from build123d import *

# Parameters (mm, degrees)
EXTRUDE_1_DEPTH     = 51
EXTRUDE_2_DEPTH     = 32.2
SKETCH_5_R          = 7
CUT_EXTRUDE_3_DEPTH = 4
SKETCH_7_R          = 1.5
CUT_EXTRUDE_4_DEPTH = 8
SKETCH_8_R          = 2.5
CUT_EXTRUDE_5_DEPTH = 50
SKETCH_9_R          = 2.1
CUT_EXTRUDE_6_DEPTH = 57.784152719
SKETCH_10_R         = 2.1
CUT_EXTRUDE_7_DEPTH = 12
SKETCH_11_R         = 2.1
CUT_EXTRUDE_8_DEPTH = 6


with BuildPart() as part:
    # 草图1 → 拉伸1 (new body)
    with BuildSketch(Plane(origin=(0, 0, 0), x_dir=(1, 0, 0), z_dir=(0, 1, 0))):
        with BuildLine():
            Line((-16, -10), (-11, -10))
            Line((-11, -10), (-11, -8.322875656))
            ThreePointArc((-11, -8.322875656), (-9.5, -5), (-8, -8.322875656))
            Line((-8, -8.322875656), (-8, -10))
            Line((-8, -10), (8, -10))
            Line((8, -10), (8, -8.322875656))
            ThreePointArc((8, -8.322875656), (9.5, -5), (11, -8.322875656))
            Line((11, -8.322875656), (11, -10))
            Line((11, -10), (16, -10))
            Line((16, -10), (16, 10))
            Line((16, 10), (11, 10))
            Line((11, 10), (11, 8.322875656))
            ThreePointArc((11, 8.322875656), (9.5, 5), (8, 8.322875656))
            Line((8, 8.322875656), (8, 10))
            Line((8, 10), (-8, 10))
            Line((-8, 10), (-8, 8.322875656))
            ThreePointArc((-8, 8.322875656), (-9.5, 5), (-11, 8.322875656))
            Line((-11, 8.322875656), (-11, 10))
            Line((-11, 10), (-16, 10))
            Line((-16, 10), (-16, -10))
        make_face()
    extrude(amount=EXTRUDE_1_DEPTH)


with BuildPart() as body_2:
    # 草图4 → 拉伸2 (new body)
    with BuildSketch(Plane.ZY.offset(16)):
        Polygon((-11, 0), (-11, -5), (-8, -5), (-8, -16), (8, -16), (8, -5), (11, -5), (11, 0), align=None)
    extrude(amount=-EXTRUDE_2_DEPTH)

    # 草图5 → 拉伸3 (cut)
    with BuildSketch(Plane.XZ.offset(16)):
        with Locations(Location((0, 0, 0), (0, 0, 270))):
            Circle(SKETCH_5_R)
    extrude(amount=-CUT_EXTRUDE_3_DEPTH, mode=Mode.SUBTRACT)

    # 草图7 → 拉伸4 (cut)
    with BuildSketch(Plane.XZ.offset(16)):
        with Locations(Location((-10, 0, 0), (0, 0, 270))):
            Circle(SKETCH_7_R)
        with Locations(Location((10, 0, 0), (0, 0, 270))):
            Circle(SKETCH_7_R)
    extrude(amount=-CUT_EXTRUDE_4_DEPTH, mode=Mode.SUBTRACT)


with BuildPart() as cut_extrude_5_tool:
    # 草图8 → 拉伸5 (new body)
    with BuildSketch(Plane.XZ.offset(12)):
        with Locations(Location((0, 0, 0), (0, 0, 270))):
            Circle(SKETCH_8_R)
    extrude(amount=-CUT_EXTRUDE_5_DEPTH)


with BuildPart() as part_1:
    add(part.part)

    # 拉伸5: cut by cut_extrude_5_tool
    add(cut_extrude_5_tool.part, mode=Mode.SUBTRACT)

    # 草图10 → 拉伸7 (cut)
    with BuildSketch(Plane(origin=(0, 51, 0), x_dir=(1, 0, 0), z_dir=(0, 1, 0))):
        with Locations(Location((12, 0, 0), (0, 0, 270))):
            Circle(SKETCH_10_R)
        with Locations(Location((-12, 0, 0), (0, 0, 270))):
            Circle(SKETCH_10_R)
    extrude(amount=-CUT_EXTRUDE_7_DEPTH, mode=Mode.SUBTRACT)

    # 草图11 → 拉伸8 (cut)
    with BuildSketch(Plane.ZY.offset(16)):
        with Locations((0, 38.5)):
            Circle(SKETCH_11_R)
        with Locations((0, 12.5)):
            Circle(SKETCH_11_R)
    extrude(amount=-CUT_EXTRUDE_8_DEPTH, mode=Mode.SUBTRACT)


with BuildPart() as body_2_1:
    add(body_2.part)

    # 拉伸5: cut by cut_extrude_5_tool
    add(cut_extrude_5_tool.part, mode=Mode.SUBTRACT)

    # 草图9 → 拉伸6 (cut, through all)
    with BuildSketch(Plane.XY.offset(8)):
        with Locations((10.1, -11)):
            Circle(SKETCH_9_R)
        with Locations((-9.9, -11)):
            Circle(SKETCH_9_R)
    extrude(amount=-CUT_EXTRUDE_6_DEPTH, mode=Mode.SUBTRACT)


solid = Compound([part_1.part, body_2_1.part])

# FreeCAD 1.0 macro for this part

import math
import FreeCAD as App
import Part
import Sketcher

V = App.Vector


def add_polygon(sketch, points):
    """Adds a closed chain of lines whose ends are joined by coincident constraints."""
    first, n = sketch.GeometryCount, len(points)
    for a, b in zip(points, points[1:] + points[:1]):
        sketch.addGeometry(Part.LineSegment(App.Vector(*a, 0), App.Vector(*b, 0)), False)
    for i in range(n):
        sketch.addConstraint(Sketcher.Constraint("Coincident", first + i, 2, first + (i + 1) % n, 1))

doc = App.newDocument("Part")
body = doc.addObject("PartDesign::Body", "Body")

# Sketch on XZ plane
sketch1 = body.newObject("Sketcher::SketchObject", "Sketch")
sketch1.AttachmentSupport = (doc.getObject("XZ_Plane"), [""])
sketch1.MapMode = "FlatFace"
sketch1.addGeometry([
    Part.LineSegment(V(-16, 10, 0), V(-11, 10, 0)),  # 0
    Part.LineSegment(V(-11, 10, 0), V(-11, 8.3, 0)),  # 1
    Part.ArcOfCircle(Part.Circle(V(-9.5, 7, 0), V(0, 0, 1), 2), math.radians(139), math.radians(401)),  # 2
    Part.LineSegment(V(-8, 8.3, 0), V(-8, 10, 0)),  # 3
    Part.LineSegment(V(-8, 10, 0), V(8, 10, 0)),  # 4
    Part.LineSegment(V(8, 10, 0), V(8, 8.3, 0)),  # 5
    Part.ArcOfCircle(Part.Circle(V(9.5, 7, 0), V(0, 0, 1), 2), math.radians(139), math.radians(401)),  # 6
    Part.LineSegment(V(11, 8.3, 0), V(11, 10, 0)),  # 7
    Part.LineSegment(V(11, 10, 0), V(16, 10, 0)),  # 8
    Part.LineSegment(V(16, 10, 0), V(16, -10, 0)),  # 9
    Part.LineSegment(V(16, -10, 0), V(11, -10, 0)),  # 10
    Part.LineSegment(V(11, -10, 0), V(11, -8.3, 0)),  # 11
    Part.ArcOfCircle(Part.Circle(V(9.5, -7, 0), V(0, 0, 1), 2), math.radians(-41), math.radians(221)),  # 12
    Part.LineSegment(V(8, -8.3, 0), V(8, -10, 0)),  # 13
    Part.LineSegment(V(8, -10, 0), V(-8, -10, 0)),  # 14
    Part.LineSegment(V(-8, -10, 0), V(-8, -8.3, 0)),  # 15
    Part.ArcOfCircle(Part.Circle(V(-9.5, -7, 0), V(0, 0, 1), 2), math.radians(-41), math.radians(221)),  # 16
    Part.LineSegment(V(-11, -8.3, 0), V(-11, -10, 0)),  # 17
    Part.LineSegment(V(-11, -10, 0), V(-16, -10, 0)),  # 18
    Part.LineSegment(V(-16, -10, 0), V(-16, 10, 0)),  # 19
], False)
sketch1.addConstraint([
    Sketcher.Constraint("Coincident", 0, 2, 1, 1),
    Sketcher.Constraint("Coincident", 1, 2, 2, 1),
    Sketcher.Constraint("Coincident", 2, 2, 3, 1),
    Sketcher.Constraint("Coincident", 3, 2, 4, 1),
    Sketcher.Constraint("Coincident", 4, 2, 5, 1),
    Sketcher.Constraint("Coincident", 5, 2, 6, 1),
    Sketcher.Constraint("Coincident", 6, 2, 7, 1),
    Sketcher.Constraint("Coincident", 7, 2, 8, 1),
    Sketcher.Constraint("Coincident", 8, 2, 9, 1),
    Sketcher.Constraint("Coincident", 9, 2, 10, 1),
    Sketcher.Constraint("Coincident", 10, 2, 11, 1),
    Sketcher.Constraint("Coincident", 11, 2, 12, 1),
    Sketcher.Constraint("Coincident", 12, 2, 13, 1),
    Sketcher.Constraint("Coincident", 13, 2, 14, 1),
    Sketcher.Constraint("Coincident", 14, 2, 15, 1),
    Sketcher.Constraint("Coincident", 15, 2, 16, 1),
    Sketcher.Constraint("Coincident", 16, 2, 17, 1),
    Sketcher.Constraint("Coincident", 17, 2, 18, 1),
    Sketcher.Constraint("Coincident", 18, 2, 19, 1),
    Sketcher.Constraint("Coincident", 19, 2, 0, 1),
    Sketcher.Constraint("Horizontal", 0),
    Sketcher.Constraint("Vertical", 1),
    Sketcher.Constraint("Vertical", 3),
    Sketcher.Constraint("Horizontal", 4),
    Sketcher.Constraint("Vertical", 5),
    Sketcher.Constraint("Vertical", 7),
    Sketcher.Constraint("Horizontal", 8),
    Sketcher.Constraint("Vertical", 9),
    Sketcher.Constraint("Horizontal", 10),
    Sketcher.Constraint("Vertical", 11),
    Sketcher.Constraint("Vertical", 13),
    Sketcher.Constraint("Horizontal", 14),
    Sketcher.Constraint("Vertical", 15),
    Sketcher.Constraint("Vertical", 17),
    Sketcher.Constraint("Horizontal", 18),
    Sketcher.Constraint("Vertical", 19),
    Sketcher.Constraint("Equal", 2, 6),
    Sketcher.Constraint("Equal", 6, 12),
    Sketcher.Constraint("Equal", 12, 16),
    Sketcher.Constraint("Symmetric", 2, 3, 12, 3, -1, 1),
    Sketcher.Constraint("Symmetric", 6, 3, 16, 3, -1, 1),
    Sketcher.Constraint("Symmetric", 0, 2, 10, 2, -1, 1),
    Sketcher.Constraint("Symmetric", 3, 2, 13, 2, -1, 1),
    Sketcher.Constraint("Symmetric", 7, 2, 17, 2, -1, 1),
    Sketcher.Constraint("Symmetric", 2, 3, 6, 3, -2),
    Sketcher.Constraint("Symmetric", 0, 2, 7, 2, -2),
    Sketcher.Constraint("Horizontal", 1, 2, 2, 2),
    Sketcher.Constraint("Horizontal", 0, 2, 3, 2),
    Sketcher.Constraint("Horizontal", 2, 2, 5, 2),
    Sketcher.Constraint("Horizontal", 12, 2, 15, 2),
    Sketcher.Constraint("Equal", 0, 8),
    Sketcher.Constraint("Radius", 2, 2.0),
    Sketcher.Constraint("DistanceX", 0, 1, 0, 2, 5.0),
    Sketcher.Constraint("DistanceX", 4, 1, 4, 2, 16.0),
    Sketcher.Constraint("DistanceY", 9, 2, 9, 1, 20.0),
    Sketcher.Constraint("DistanceY", -1, 1, 2, 3, 7.0),
    Sketcher.Constraint("DistanceX", 0, 2, -1, 1, 11.0),
])
pad1 = body.newObject("PartDesign::Pad", "Pad")
pad1.Profile = sketch1
pad1.Length = 51
pad1.Reversed = True
body2 = doc.addObject("PartDesign::Body", "Body001")

# Sketch on YZ plane
sketch2 = body2.newObject("Sketcher::SketchObject", "Sketch001")
sketch2.AttachmentSupport = (doc.getObject("YZ_Plane001"), [""])
sketch2.MapMode = "FlatFace"
sketch2.AttachmentOffset = App.Placement(V(0, 0, -16), App.Rotation())
add_polygon(sketch2, [(0, -11), (-5, -11), (-5, -8), (-16, -8), (-16, 8), (-5, 8), (-5, 11), (0, 11)])  # lines 0-7
sketch2.addConstraint([
    Sketcher.Constraint("Horizontal", 0),
    Sketcher.Constraint("Vertical", 1),
    Sketcher.Constraint("Horizontal", 2),
    Sketcher.Constraint("Vertical", 3),
    Sketcher.Constraint("Horizontal", 4),
    Sketcher.Constraint("Vertical", 5),
    Sketcher.Constraint("Horizontal", 6),
    Sketcher.Constraint("Vertical", 7),
    Sketcher.Constraint("Symmetric", 6, 2, 7, 2, -1, 1),
    Sketcher.Constraint("Symmetric", 1, 2, 4, 2, -1),
    Sketcher.Constraint("DistanceX", 0, 2, 0, 1, 5.0),
    Sketcher.Constraint("DistanceX", 2, 2, 2, 1, 11.0),
    Sketcher.Constraint("DistanceY", 1, 1, 1, 2, 3.0),
    Sketcher.Constraint("DistanceY", 3, 1, 3, 2, 16.0),
])
pad2 = body2.newObject("PartDesign::Pad", "Pad001")
pad2.Profile = sketch2
pad2.Length = 32.2

# Sketch on XZ plane
sketch3 = body2.newObject("Sketcher::SketchObject", "Sketch002")
sketch3.AttachmentSupport = (doc.getObject("XZ_Plane001"), [""])
sketch3.MapMode = "FlatFace"
sketch3.AttachmentOffset = App.Placement(V(0, 0, 16), App.Rotation())
sketch3.addGeometry(Part.Circle(V(0, 0, 0), V(0, 0, 1), 7), False)
sketch3.addConstraint([
    Sketcher.Constraint("Coincident", 0, 3, -1, 1),
    Sketcher.Constraint("Diameter", 0, 14.0),
])
pocket1 = body2.newObject("PartDesign::Pocket", "Pocket")
pocket1.Profile = sketch3
pocket1.Length = 4

# Sketch on XZ plane
sketch4 = body2.newObject("Sketcher::SketchObject", "Sketch003")
sketch4.AttachmentSupport = (doc.getObject("XZ_Plane001"), [""])
sketch4.MapMode = "FlatFace"
sketch4.AttachmentOffset = App.Placement(V(0, 0, 16), App.Rotation())
sketch4.addGeometry([
    Part.Circle(V(-10, 0, 0), V(0, 0, 1), 1.5),
    Part.Circle(V(10, 0, 0), V(0, 0, 1), 1.5),
], False)
sketch4.addConstraint([
    Sketcher.Constraint("Equal", 0, 1),
    Sketcher.Constraint("Symmetric", 0, 3, 1, 3, -1, 1),
    Sketcher.Constraint("PointOnObject", 0, 3, -1),
    Sketcher.Constraint("Diameter", 0, 3.0),
    Sketcher.Constraint("DistanceX", 0, 3, -1, 1, 10.0),
])
pocket2 = body2.newObject("PartDesign::Pocket", "Pocket001")
pocket2.Profile = sketch4
pocket2.Length = 8
body3 = doc.addObject("PartDesign::Body", "Body002")

# Sketch on XZ plane
sketch5 = body3.newObject("Sketcher::SketchObject", "Sketch004")
sketch5.AttachmentSupport = (doc.getObject("XZ_Plane002"), [""])
sketch5.MapMode = "FlatFace"
sketch5.AttachmentOffset = App.Placement(V(0, 0, 12), App.Rotation())
sketch5.addGeometry(Part.Circle(V(0, 0, 0), V(0, 0, 1), 2.5), False)
sketch5.addConstraint([
    Sketcher.Constraint("Coincident", 0, 3, -1, 1),
    Sketcher.Constraint("Diameter", 0, 5.0),
])
pad3 = body3.newObject("PartDesign::Pad", "Pad002")
pad3.Profile = sketch5
pad3.Length = 50
pad3.Reversed = True
doc.recompute()

body4 = doc.addObject("PartDesign::Body", "Body003")
body4.BaseFeature = body3
boolean = body.newObject("PartDesign::Boolean", "Boolean")
boolean.Type = "Cut"
boolean.addObjects([body4])
doc.recompute()

# Sketch on XZ plane
sketch6 = body.newObject("Sketcher::SketchObject", "Sketch005")
sketch6.AttachmentSupport = (doc.getObject("XZ_Plane"), [""])
sketch6.MapMode = "FlatFace"
sketch6.AttachmentOffset = App.Placement(V(0, 0, -51), App.Rotation())
sketch6.addGeometry([
    Part.Circle(V(12, 0, 0), V(0, 0, 1), 2.1),
    Part.Circle(V(-12, 0, 0), V(0, 0, 1), 2.1),
], False)
sketch6.addConstraint([
    Sketcher.Constraint("Equal", 0, 1),
    Sketcher.Constraint("Symmetric", 0, 3, 1, 3, -1, 1),
    Sketcher.Constraint("PointOnObject", 0, 3, -1),
    Sketcher.Constraint("Diameter", 0, 4.2),
    Sketcher.Constraint("DistanceX", -1, 1, 0, 3, 12.0),
])
pocket3 = body.newObject("PartDesign::Pocket", "Pocket002")
pocket3.Profile = sketch6
pocket3.Length = 12
pocket3.Reversed = True

# Sketch on YZ plane
sketch7 = body.newObject("Sketcher::SketchObject", "Sketch006")
sketch7.AttachmentSupport = (doc.getObject("YZ_Plane"), [""])
sketch7.MapMode = "FlatFace"
sketch7.AttachmentOffset = App.Placement(V(0, 0, -16), App.Rotation())
sketch7.addGeometry([
    Part.Circle(V(38.5, 0, 0), V(0, 0, 1), 2.1),
    Part.Circle(V(12.5, 0, 0), V(0, 0, 1), 2.1),
], False)
sketch7.addConstraint([
    Sketcher.Constraint("Equal", 0, 1),
    Sketcher.Constraint("PointOnObject", 0, 3, -1),
    Sketcher.Constraint("PointOnObject", 1, 3, -1),
    Sketcher.Constraint("Diameter", 0, 4.2),
    Sketcher.Constraint("DistanceX", 1, 3, 0, 3, 26.0),
    Sketcher.Constraint("DistanceX", -1, 1, 0, 3, 38.5),
])
pocket4 = body.newObject("PartDesign::Pocket", "Pocket003")
pocket4.Profile = sketch7
pocket4.Length = 6
pocket4.Reversed = True
doc.recompute()

boolean2 = body2.newObject("PartDesign::Boolean", "Boolean001")
boolean2.Type = "Cut"
boolean2.addObjects([body3])

# Sketch on XY plane
sketch8 = body2.newObject("Sketcher::SketchObject", "Sketch007")
sketch8.AttachmentSupport = (doc.getObject("XY_Plane001"), [""])
sketch8.MapMode = "FlatFace"
sketch8.AttachmentOffset = App.Placement(V(0, 0, 8), App.Rotation())
sketch8.addGeometry([
    Part.Circle(V(10.1, -11, 0), V(0, 0, 1), 2.1),
    Part.Circle(V(-9.9, -11, 0), V(0, 0, 1), 2.1),
], False)
sketch8.addConstraint([
    Sketcher.Constraint("Equal", 0, 1),
    Sketcher.Constraint("Horizontal", 0, 3, 1, 3),
    Sketcher.Constraint("Diameter", 0, 4.2),
    Sketcher.Constraint("DistanceY", 0, 3, -1, 1, 11.0),
    Sketcher.Constraint("DistanceX", 1, 3, 0, 3, 20.0),
    Sketcher.Constraint("DistanceX", -1, 1, 0, 3, 10.1),
])
pocket5 = body2.newObject("PartDesign::Pocket", "Pocket004")
pocket5.Profile = sketch8
pocket5.Type = "ThroughAll"

doc.recompute()
